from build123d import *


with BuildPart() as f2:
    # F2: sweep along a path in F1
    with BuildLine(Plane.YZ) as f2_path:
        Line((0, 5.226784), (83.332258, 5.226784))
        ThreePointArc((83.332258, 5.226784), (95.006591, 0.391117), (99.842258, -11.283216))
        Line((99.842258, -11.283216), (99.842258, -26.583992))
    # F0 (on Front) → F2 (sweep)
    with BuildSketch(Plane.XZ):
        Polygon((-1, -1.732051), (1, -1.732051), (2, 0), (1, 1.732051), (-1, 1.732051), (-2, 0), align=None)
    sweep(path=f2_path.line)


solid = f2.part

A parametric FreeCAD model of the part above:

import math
import FreeCAD as App
import Part
import Sketcher

V = App.Vector
Q = App.Units.Quantity

doc = App.newDocument("Part")
body = doc.addObject("PartDesign::Body", "Body")

# Sketch on XZ plane
sketch1 = doc.addObject("Sketcher::SketchObject", "Sketch")
body.addObject(sketch1)
sketch1.AttachmentSupport = (doc.XZ_Plane, [""])
sketch1.MapMode = "FlatFace"
sketch1.addGeometry([
    Part.LineSegment(V(-1, -1.7, 0), V(1, -1.7, 0)),  # 0
    Part.LineSegment(V(1, -1.7, 0), V(2, 0, 0)),  # 1
    Part.LineSegment(V(2, 0, 0), V(1, 1.7, 0)),  # 2
    Part.LineSegment(V(1, 1.7, 0), V(-1, 1.7, 0)),  # 3
    Part.LineSegment(V(-1, 1.7, 0), V(-2, 0, 0)),  # 4
    Part.LineSegment(V(-2, 0, 0), V(-1, -1.7, 0)),  # 5
], False)
sketch1.addConstraint([
    Sketcher.Constraint("Coincident", 0, 2, 1, 1),
    Sketcher.Constraint("Coincident", 1, 2, 2, 1),
    Sketcher.Constraint("Coincident", 2, 2, 3, 1),
    Sketcher.Constraint("Coincident", 3, 2, 4, 1),
    Sketcher.Constraint("Coincident", 4, 2, 5, 1),
    Sketcher.Constraint("Coincident", 5, 2, 0, 1),
    Sketcher.Constraint("Horizontal", 0),
    Sketcher.Constraint("Horizontal", 3),
    Sketcher.Constraint("Symmetric", 0, 2, 3, 2, -1, 1),
    Sketcher.Constraint("Symmetric", 1, 2, 4, 2, -1, 1),
    Sketcher.Constraint("PointOnObject", 1, 2, -1),
    Sketcher.Constraint("Parallel", 2, 5),
    Sketcher.Constraint("Vertical", 0, 2, 2, 2),
    Sketcher.Constraint("DistanceX", 0, 1, 0, 2, 2.0),
    Sketcher.Constraint("Angle", 1, Q("60.000003 deg")),
    Sketcher.Constraint("Distance", 1, 2.0),
])

# Sketch on YZ plane
sketch2 = doc.addObject("Sketcher::SketchObject", "Sketch001")
body.addObject(sketch2)
sketch2.AttachmentSupport = (doc.YZ_Plane, [""])
sketch2.MapMode = "FlatFace"
sketch2.addGeometry([
    Part.LineSegment(V(0, 5, 0), V(83, 5, 0)),
    Part.ArcOfCircle(Part.Circle(V(83, -11, 0), V(0, 0, 1), 17), math.radians(0), math.radians(90)),
    Part.LineSegment(V(100, -11, 0), V(100, -27, 0)),
], False)
sketch2.addConstraint([
    Sketcher.Constraint("Tangent", 0, 2, 1, 2),
    Sketcher.Constraint("Tangent", 1, 1, 2, 1),
    Sketcher.Constraint("Horizontal", 0),
    Sketcher.Constraint("Vertical", 2),
    Sketcher.Constraint("PointOnObject", 0, 1, -2),
    Sketcher.Constraint("Radius", 1, 16.51),
    Sketcher.Constraint("DistanceX", 0, 1, 0, 2, 83.332258),
    Sketcher.Constraint("DistanceY", 2, 2, 2, 1, 15.300776),
    Sketcher.Constraint("DistanceY", 2, 2, -1, 1, 26.583992),
])
doc.recompute()

additivepipe = doc.addObject("PartDesign::AdditivePipe", "AdditivePipe")
body.addObject(additivepipe)
additivepipe.Profile = sketch1
additivepipe.Spine = (sketch2, ["Edge1", "Edge2", "Edge3"])

doc.recompute()
